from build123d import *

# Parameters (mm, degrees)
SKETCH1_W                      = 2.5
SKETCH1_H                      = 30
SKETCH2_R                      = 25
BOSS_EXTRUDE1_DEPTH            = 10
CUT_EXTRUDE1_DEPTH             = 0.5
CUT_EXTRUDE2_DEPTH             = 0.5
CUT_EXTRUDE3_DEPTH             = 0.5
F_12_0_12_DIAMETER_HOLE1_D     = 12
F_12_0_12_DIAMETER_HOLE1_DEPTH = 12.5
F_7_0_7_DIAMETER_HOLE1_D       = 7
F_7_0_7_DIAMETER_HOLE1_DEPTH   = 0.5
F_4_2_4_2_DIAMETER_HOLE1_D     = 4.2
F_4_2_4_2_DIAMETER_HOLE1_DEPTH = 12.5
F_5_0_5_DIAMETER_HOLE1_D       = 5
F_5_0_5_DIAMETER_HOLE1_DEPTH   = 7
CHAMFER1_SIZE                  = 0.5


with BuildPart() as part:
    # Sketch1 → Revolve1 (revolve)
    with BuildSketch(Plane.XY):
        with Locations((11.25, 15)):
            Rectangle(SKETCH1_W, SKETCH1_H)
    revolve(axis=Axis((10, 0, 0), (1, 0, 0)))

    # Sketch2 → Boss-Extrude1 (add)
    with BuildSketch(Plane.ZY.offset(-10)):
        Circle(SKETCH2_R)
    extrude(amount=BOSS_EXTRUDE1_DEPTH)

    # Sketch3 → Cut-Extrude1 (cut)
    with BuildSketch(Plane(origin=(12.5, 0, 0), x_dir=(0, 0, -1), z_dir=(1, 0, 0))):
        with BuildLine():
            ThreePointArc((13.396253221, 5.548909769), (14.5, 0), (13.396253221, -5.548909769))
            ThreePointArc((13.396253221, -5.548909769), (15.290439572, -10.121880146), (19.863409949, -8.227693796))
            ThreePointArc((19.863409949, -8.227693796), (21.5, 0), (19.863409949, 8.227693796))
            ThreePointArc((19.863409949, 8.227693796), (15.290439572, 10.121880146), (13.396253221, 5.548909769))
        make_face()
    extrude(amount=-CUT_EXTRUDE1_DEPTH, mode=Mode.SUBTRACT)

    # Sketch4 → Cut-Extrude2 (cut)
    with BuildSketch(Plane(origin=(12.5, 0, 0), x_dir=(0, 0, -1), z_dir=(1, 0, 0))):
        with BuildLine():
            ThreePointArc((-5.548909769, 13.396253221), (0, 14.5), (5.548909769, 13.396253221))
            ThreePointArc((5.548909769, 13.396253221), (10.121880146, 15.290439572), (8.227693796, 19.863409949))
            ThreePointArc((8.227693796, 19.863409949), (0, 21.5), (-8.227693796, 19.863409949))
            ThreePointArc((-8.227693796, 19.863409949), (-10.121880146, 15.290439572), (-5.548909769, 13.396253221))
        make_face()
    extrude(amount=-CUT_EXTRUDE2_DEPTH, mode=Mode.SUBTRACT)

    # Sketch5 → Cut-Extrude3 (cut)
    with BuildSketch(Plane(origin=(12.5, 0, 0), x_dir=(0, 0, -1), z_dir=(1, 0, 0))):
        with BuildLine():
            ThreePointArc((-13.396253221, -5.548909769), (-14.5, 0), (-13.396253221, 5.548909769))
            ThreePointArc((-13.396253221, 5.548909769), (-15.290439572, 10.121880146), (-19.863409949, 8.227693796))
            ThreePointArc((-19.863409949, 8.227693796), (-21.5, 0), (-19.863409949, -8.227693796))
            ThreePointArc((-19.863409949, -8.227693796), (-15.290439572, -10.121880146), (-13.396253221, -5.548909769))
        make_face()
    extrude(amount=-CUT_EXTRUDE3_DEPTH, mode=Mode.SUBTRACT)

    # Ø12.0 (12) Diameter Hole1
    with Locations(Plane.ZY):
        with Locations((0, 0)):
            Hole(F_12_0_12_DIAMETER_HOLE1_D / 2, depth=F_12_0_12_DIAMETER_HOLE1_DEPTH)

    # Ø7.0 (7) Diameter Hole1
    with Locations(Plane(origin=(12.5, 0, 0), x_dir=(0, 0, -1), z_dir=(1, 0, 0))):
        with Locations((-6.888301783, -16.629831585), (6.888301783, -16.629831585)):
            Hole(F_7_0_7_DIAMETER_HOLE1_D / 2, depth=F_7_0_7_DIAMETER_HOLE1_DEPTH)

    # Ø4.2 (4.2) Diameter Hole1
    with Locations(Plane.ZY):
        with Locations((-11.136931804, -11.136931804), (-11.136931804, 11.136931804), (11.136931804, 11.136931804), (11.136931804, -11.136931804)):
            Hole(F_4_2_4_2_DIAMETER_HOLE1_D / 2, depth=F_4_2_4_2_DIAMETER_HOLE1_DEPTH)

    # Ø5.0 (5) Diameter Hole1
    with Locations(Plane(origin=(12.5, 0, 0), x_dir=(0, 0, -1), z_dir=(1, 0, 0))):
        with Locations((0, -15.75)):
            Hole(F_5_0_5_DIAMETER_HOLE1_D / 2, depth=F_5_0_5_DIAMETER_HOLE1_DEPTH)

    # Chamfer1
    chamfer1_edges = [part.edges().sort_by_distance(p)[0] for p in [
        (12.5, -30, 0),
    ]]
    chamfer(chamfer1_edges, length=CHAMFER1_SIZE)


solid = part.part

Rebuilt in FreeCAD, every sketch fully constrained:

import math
import FreeCAD as App
import Part
import Sketcher
from FreeCAD import Vector


def edges_at(feature, points):
    """Names of the edges that pass closest to the given points."""
    edges = feature.Shape.Edges
    near = lambda p: min(range(len(edges)), key=lambda i: edges[i].distToShape(Part.Vertex(*p))[0])
    return sorted({f"Edge{near(p) + 1}" for p in points})

doc = App.newDocument("Part")
body = doc.addObject("PartDesign::Body", "Body")

# Sketch on XY plane
sketch1 = body.newObject("Sketcher::SketchObject", "Sketch")
sketch1.AttachmentSupport = (doc.getObject("XY_Plane"), [""])
sketch1.MapMode = "FlatFace"
sketch1.addGeometry([
    Part.LineSegment(Vector(10, 30, 0), Vector(10, 0, 0)),
    Part.LineSegment(Vector(10, 0, 0), Vector(12.5, 0, 0)),
    Part.LineSegment(Vector(12.5, 0, 0), Vector(12.5, 30, 0)),
    Part.LineSegment(Vector(12.5, 30, 0), Vector(10, 30, 0)),
], False)
sketch1.addConstraint([
    Sketcher.Constraint("Coincident", 0, 2, 1, 1),
    Sketcher.Constraint("Coincident", 1, 2, 2, 1),
    Sketcher.Constraint("Coincident", 2, 2, 3, 1),
    Sketcher.Constraint("Coincident", 3, 2, 0, 1),
    Sketcher.Constraint("Vertical", 0),
    Sketcher.Constraint("Horizontal", 1),
    Sketcher.Constraint("Vertical", 2),
    Sketcher.Constraint("Horizontal", 3),
    Sketcher.Constraint("PointOnObject", 0, 2, -1),
    Sketcher.Constraint("DistanceY", 0, 2, 0, 1, 30.0),
    Sketcher.Constraint("DistanceX", 1, 1, 1, 2, 2.5),
    Sketcher.Constraint("DistanceX", -1, 1, 0, 2, 10.0),
])
revolution = body.newObject("PartDesign::Revolution", "Revolution")
revolution.Profile = sketch1
revolution.ReferenceAxis = (sketch1, ["H_Axis"])
revolution.Angle = 360

# Sketch on YZ plane
sketch2 = body.newObject("Sketcher::SketchObject", "Sketch001")
sketch2.AttachmentSupport = (doc.getObject("YZ_Plane"), [""])
sketch2.MapMode = "FlatFace"
sketch2.AttachmentOffset = App.Placement(Vector(0, 0, 10), App.Rotation())
sketch2.addGeometry(Part.Circle(Vector(0, 0, 0), Vector(0, 0, 1), 25), False)
sketch2.addConstraint([
    Sketcher.Constraint("Coincident", 0, 3, -1, 1),
    Sketcher.Constraint("Diameter", 0, 50.0),
])
pad1 = body.newObject("PartDesign::Pad", "Pad")
pad1.Profile = sketch2
pad1.Length = 10
pad1.Reversed = True

# Sketch on YZ plane
sketch3 = body.newObject("Sketcher::SketchObject", "Sketch002")
sketch3.AttachmentSupport = (doc.getObject("YZ_Plane"), [""])
sketch3.MapMode = "FlatFace"
sketch3.AttachmentOffset = App.Placement(Vector(0, 0, 12.5), App.Rotation())
sketch3.addGeometry([
    Part.ArcOfCircle(Part.Circle(Vector(0, 0, 0), Vector(0, 0, 1), 14.5), math.radians(-113), math.radians(-67)),
    Part.ArcOfCircle(Part.Circle(Vector(-6.9, -16.6, 0), Vector(0, 0, 1), 3.5), math.radians(68), math.radians(247)),
    Part.ArcOfCircle(Part.Circle(Vector(0, 0, 0), Vector(0, 0, 1), 21.5), math.radians(-112), math.radians(-68)),
    Part.ArcOfCircle(Part.Circle(Vector(6.9, -16.6, 0), Vector(0, 0, 1), 3.5), math.radians(-67), math.radians(112)),
], False)
sketch3.addConstraint([
    Sketcher.Constraint("Tangent", 0, 1, 1, 1),
    Sketcher.Constraint("Tangent", 1, 2, 2, 1),
    Sketcher.Constraint("Tangent", 2, 2, 3, 1),
    Sketcher.Constraint("Tangent", 3, 2, 0, 2),
    Sketcher.Constraint("Coincident", 0, 3, -1, 1),
    Sketcher.Constraint("Coincident", 2, 3, -1, 1),
    Sketcher.Constraint("Horizontal", 1, 3, 3, 3),
    Sketcher.Constraint("Radius", 0, 14.5),
    Sketcher.Constraint("Radius", 1, 3.5),
    Sketcher.Constraint("DistanceX", 1, 3, -1, 1, 6.888302),
])
pocket1 = body.newObject("PartDesign::Pocket", "Pocket")
pocket1.Profile = sketch3
pocket1.Length = 0.5

# Sketch on YZ plane
sketch4 = body.newObject("Sketcher::SketchObject", "Sketch003")
sketch4.AttachmentSupport = (doc.getObject("YZ_Plane"), [""])
sketch4.MapMode = "FlatFace"
sketch4.AttachmentOffset = App.Placement(Vector(0, 0, 12.5), App.Rotation())
sketch4.addGeometry([
    Part.ArcOfCircle(Part.Circle(Vector(0, 0, 0), Vector(0, 0, 1), 14.5), math.radians(-23), math.radians(23)),
    Part.ArcOfCircle(Part.Circle(Vector(16.6, -6.9, 0), Vector(0, 0, 1), 3.5), math.radians(158), math.radians(337)),
    Part.ArcOfCircle(Part.Circle(Vector(0, 0, 0), Vector(0, 0, 1), 21.5), math.radians(-22), math.radians(22)),
    Part.ArcOfCircle(Part.Circle(Vector(16.6, 6.9, 0), Vector(0, 0, 1), 3.5), math.radians(23), math.radians(202)),
], False)
sketch4.addConstraint([
    Sketcher.Constraint("Tangent", 0, 1, 1, 1),
    Sketcher.Constraint("Tangent", 1, 2, 2, 1),
    Sketcher.Constraint("Tangent", 2, 2, 3, 1),
    Sketcher.Constraint("Tangent", 3, 2, 0, 2),
    Sketcher.Constraint("Coincident", 0, 3, -1, 1),
    Sketcher.Constraint("Coincident", 2, 3, -1, 1),
    Sketcher.Constraint("Vertical", 1, 3, 3, 3),
    Sketcher.Constraint("Radius", 0, 14.5),
    Sketcher.Constraint("Radius", 1, 3.5),
    Sketcher.Constraint("DistanceY", 1, 3, -1, 1, 6.888302),
])
pocket2 = body.newObject("PartDesign::Pocket", "Pocket001")
pocket2.Profile = sketch4
pocket2.Length = 0.5

# Sketch on YZ plane
sketch5 = body.newObject("Sketcher::SketchObject", "Sketch004")
sketch5.AttachmentSupport = (doc.getObject("YZ_Plane"), [""])
sketch5.MapMode = "FlatFace"
sketch5.AttachmentOffset = App.Placement(Vector(0, 0, 12.5), App.Rotation())
sketch5.addGeometry([
    Part.ArcOfCircle(Part.Circle(Vector(0, 0, 0), Vector(0, 0, 1), 14.5), math.radians(67), math.radians(113)),
    Part.ArcOfCircle(Part.Circle(Vector(6.9, 16.6, 0), Vector(0, 0, 1), 3.5), math.radians(-112), math.radians(67)),
    Part.ArcOfCircle(Part.Circle(Vector(0, 0, 0), Vector(0, 0, 1), 21.5), math.radians(68), math.radians(112)),
    Part.ArcOfCircle(Part.Circle(Vector(-6.9, 16.6, 0), Vector(0, 0, 1), 3.5), math.radians(113), math.radians(292)),
], False)
sketch5.addConstraint([
    Sketcher.Constraint("Tangent", 0, 1, 1, 1),
    Sketcher.Constraint("Tangent", 1, 2, 2, 1),
    Sketcher.Constraint("Tangent", 2, 2, 3, 1),
    Sketcher.Constraint("Tangent", 3, 2, 0, 2),
    Sketcher.Constraint("Coincident", 0, 3, -1, 1),
    Sketcher.Constraint("Coincident", 2, 3, -1, 1),
    Sketcher.Constraint("Horizontal", 1, 3, 3, 3),
    Sketcher.Constraint("Radius", 0, 14.5),
    Sketcher.Constraint("Radius", 1, 3.5),
    Sketcher.Constraint("DistanceX", -1, 1, 1, 3, 6.888302),
])
pocket3 = body.newObject("PartDesign::Pocket", "Pocket002")
pocket3.Profile = sketch5
pocket3.Length = 0.5

# Sketch on YZ plane
sketch6 = body.newObject("Sketcher::SketchObject", "Sketch005")
sketch6.AttachmentSupport = (doc.getObject("YZ_Plane"), [""])
sketch6.MapMode = "FlatFace"
sketch6.addGeometry(Part.Circle(Vector(0, 0, 0), Vector(0, 0, 1), 6), False)
sketch6.addConstraint([
    Sketcher.Constraint("Coincident", 0, 3, -1, 1),
    Sketcher.Constraint("Diameter", 0, 12.0),
])
doc.recompute()
hole = body.newObject("PartDesign::Hole", "Hole")
hole.Profile = sketch6
hole.ThreadType = "None"
hole.Diameter = 12
hole.DepthType = "Dimension"
hole.Depth = 12.5
hole.DrillPoint = "Flat"
hole.Reversed = True

# Sketch on YZ plane
sketch7 = body.newObject("Sketcher::SketchObject", "Sketch006")
sketch7.AttachmentSupport = (doc.getObject("YZ_Plane"), [""])
sketch7.MapMode = "FlatFace"
sketch7.AttachmentOffset = App.Placement(Vector(0, 0, 12.5), App.Rotation())
sketch7.addGeometry([
    Part.Circle(Vector(-16.6, 6.9, 0), Vector(0, 0, 1), 3.5),
    Part.Circle(Vector(-16.6, -6.9, 0), Vector(0, 0, 1), 3.5),
], False)
sketch7.addConstraint([
    Sketcher.Constraint("Equal", 0, 1),
    Sketcher.Constraint("Symmetric", 0, 3, 1, 3, -1),
    Sketcher.Constraint("Diameter", 0, 7.0),
    Sketcher.Constraint("DistanceY", -1, 1, 0, 3, 6.888302),
    Sketcher.Constraint("DistanceX", 0, 3, -1, 1, 16.629832),
])
doc.recompute()
hole2 = body.newObject("PartDesign::Hole", "Hole001")
hole2.Profile = sketch7
hole2.ThreadType = "None"
hole2.Diameter = 7
hole2.DepthType = "Dimension"
hole2.Depth = 0.5
hole2.DrillPoint = "Flat"

# Sketch on YZ plane
sketch8 = body.newObject("Sketcher::SketchObject", "Sketch007")
sketch8.AttachmentSupport = (doc.getObject("YZ_Plane"), [""])
sketch8.MapMode = "FlatFace"
sketch8.addGeometry([
    Part.Circle(Vector(-11.1, -11.1, 0), Vector(0, 0, 1), 2.1),
    Part.Circle(Vector(11.1, -11.1, 0), Vector(0, 0, 1), 2.1),
    Part.Circle(Vector(11.1, 11.1, 0), Vector(0, 0, 1), 2.1),
    Part.Circle(Vector(-11.1, 11.1, 0), Vector(0, 0, 1), 2.1),
], False)
sketch8.addConstraint([
    Sketcher.Constraint("Equal", 0, 1),
    Sketcher.Constraint("Equal", 1, 2),
    Sketcher.Constraint("Equal", 2, 3),
    Sketcher.Constraint("Symmetric", 0, 3, 2, 3, -1, 1),
    Sketcher.Constraint("Symmetric", 1, 3, 3, 3, -1, 1),
    Sketcher.Constraint("Symmetric", 0, 3, 1, 3, -2),
    Sketcher.Constraint("Diameter", 0, 4.2),
    Sketcher.Constraint("DistanceX", 0, 3, -1, 1, 11.136932),
    Sketcher.Constraint("DistanceY", 0, 3, -1, 1, 11.136932),
])
doc.recompute()
hole3 = body.newObject("PartDesign::Hole", "Hole002")
hole3.Profile = sketch8
hole3.ThreadType = "None"
hole3.Diameter = 4.2
hole3.DepthType = "Dimension"
hole3.Depth = 12.5
hole3.DrillPoint = "Flat"
hole3.Reversed = True

# Sketch on YZ plane
sketch9 = body.newObject("Sketcher::SketchObject", "Sketch008")
sketch9.AttachmentSupport = (doc.getObject("YZ_Plane"), [""])
sketch9.MapMode = "FlatFace"
sketch9.AttachmentOffset = App.Placement(Vector(0, 0, 12.5), App.Rotation())
sketch9.addGeometry(Part.Circle(Vector(-15.8, 0, 0), Vector(0, 0, 1), 2.5), False)
sketch9.addConstraint([
    Sketcher.Constraint("PointOnObject", 0, 3, -1),
    Sketcher.Constraint("Diameter", 0, 5.0),
    Sketcher.Constraint("DistanceX", 0, 3, -1, 1, 15.75),
])
doc.recompute()
hole4 = body.newObject("PartDesign::Hole", "Hole003")
hole4.Profile = sketch9
hole4.ThreadType = "None"
hole4.Diameter = 5
hole4.DepthType = "Dimension"
hole4.Depth = 7
hole4.DrillPoint = "Flat"
doc.recompute()

chamfer = body.newObject("PartDesign::Chamfer", "Chamfer")
chamfer.Base = (hole4, edges_at(hole4, [(12.5, -30, 0)]))
chamfer.Size = 0.5

doc.recompute()
